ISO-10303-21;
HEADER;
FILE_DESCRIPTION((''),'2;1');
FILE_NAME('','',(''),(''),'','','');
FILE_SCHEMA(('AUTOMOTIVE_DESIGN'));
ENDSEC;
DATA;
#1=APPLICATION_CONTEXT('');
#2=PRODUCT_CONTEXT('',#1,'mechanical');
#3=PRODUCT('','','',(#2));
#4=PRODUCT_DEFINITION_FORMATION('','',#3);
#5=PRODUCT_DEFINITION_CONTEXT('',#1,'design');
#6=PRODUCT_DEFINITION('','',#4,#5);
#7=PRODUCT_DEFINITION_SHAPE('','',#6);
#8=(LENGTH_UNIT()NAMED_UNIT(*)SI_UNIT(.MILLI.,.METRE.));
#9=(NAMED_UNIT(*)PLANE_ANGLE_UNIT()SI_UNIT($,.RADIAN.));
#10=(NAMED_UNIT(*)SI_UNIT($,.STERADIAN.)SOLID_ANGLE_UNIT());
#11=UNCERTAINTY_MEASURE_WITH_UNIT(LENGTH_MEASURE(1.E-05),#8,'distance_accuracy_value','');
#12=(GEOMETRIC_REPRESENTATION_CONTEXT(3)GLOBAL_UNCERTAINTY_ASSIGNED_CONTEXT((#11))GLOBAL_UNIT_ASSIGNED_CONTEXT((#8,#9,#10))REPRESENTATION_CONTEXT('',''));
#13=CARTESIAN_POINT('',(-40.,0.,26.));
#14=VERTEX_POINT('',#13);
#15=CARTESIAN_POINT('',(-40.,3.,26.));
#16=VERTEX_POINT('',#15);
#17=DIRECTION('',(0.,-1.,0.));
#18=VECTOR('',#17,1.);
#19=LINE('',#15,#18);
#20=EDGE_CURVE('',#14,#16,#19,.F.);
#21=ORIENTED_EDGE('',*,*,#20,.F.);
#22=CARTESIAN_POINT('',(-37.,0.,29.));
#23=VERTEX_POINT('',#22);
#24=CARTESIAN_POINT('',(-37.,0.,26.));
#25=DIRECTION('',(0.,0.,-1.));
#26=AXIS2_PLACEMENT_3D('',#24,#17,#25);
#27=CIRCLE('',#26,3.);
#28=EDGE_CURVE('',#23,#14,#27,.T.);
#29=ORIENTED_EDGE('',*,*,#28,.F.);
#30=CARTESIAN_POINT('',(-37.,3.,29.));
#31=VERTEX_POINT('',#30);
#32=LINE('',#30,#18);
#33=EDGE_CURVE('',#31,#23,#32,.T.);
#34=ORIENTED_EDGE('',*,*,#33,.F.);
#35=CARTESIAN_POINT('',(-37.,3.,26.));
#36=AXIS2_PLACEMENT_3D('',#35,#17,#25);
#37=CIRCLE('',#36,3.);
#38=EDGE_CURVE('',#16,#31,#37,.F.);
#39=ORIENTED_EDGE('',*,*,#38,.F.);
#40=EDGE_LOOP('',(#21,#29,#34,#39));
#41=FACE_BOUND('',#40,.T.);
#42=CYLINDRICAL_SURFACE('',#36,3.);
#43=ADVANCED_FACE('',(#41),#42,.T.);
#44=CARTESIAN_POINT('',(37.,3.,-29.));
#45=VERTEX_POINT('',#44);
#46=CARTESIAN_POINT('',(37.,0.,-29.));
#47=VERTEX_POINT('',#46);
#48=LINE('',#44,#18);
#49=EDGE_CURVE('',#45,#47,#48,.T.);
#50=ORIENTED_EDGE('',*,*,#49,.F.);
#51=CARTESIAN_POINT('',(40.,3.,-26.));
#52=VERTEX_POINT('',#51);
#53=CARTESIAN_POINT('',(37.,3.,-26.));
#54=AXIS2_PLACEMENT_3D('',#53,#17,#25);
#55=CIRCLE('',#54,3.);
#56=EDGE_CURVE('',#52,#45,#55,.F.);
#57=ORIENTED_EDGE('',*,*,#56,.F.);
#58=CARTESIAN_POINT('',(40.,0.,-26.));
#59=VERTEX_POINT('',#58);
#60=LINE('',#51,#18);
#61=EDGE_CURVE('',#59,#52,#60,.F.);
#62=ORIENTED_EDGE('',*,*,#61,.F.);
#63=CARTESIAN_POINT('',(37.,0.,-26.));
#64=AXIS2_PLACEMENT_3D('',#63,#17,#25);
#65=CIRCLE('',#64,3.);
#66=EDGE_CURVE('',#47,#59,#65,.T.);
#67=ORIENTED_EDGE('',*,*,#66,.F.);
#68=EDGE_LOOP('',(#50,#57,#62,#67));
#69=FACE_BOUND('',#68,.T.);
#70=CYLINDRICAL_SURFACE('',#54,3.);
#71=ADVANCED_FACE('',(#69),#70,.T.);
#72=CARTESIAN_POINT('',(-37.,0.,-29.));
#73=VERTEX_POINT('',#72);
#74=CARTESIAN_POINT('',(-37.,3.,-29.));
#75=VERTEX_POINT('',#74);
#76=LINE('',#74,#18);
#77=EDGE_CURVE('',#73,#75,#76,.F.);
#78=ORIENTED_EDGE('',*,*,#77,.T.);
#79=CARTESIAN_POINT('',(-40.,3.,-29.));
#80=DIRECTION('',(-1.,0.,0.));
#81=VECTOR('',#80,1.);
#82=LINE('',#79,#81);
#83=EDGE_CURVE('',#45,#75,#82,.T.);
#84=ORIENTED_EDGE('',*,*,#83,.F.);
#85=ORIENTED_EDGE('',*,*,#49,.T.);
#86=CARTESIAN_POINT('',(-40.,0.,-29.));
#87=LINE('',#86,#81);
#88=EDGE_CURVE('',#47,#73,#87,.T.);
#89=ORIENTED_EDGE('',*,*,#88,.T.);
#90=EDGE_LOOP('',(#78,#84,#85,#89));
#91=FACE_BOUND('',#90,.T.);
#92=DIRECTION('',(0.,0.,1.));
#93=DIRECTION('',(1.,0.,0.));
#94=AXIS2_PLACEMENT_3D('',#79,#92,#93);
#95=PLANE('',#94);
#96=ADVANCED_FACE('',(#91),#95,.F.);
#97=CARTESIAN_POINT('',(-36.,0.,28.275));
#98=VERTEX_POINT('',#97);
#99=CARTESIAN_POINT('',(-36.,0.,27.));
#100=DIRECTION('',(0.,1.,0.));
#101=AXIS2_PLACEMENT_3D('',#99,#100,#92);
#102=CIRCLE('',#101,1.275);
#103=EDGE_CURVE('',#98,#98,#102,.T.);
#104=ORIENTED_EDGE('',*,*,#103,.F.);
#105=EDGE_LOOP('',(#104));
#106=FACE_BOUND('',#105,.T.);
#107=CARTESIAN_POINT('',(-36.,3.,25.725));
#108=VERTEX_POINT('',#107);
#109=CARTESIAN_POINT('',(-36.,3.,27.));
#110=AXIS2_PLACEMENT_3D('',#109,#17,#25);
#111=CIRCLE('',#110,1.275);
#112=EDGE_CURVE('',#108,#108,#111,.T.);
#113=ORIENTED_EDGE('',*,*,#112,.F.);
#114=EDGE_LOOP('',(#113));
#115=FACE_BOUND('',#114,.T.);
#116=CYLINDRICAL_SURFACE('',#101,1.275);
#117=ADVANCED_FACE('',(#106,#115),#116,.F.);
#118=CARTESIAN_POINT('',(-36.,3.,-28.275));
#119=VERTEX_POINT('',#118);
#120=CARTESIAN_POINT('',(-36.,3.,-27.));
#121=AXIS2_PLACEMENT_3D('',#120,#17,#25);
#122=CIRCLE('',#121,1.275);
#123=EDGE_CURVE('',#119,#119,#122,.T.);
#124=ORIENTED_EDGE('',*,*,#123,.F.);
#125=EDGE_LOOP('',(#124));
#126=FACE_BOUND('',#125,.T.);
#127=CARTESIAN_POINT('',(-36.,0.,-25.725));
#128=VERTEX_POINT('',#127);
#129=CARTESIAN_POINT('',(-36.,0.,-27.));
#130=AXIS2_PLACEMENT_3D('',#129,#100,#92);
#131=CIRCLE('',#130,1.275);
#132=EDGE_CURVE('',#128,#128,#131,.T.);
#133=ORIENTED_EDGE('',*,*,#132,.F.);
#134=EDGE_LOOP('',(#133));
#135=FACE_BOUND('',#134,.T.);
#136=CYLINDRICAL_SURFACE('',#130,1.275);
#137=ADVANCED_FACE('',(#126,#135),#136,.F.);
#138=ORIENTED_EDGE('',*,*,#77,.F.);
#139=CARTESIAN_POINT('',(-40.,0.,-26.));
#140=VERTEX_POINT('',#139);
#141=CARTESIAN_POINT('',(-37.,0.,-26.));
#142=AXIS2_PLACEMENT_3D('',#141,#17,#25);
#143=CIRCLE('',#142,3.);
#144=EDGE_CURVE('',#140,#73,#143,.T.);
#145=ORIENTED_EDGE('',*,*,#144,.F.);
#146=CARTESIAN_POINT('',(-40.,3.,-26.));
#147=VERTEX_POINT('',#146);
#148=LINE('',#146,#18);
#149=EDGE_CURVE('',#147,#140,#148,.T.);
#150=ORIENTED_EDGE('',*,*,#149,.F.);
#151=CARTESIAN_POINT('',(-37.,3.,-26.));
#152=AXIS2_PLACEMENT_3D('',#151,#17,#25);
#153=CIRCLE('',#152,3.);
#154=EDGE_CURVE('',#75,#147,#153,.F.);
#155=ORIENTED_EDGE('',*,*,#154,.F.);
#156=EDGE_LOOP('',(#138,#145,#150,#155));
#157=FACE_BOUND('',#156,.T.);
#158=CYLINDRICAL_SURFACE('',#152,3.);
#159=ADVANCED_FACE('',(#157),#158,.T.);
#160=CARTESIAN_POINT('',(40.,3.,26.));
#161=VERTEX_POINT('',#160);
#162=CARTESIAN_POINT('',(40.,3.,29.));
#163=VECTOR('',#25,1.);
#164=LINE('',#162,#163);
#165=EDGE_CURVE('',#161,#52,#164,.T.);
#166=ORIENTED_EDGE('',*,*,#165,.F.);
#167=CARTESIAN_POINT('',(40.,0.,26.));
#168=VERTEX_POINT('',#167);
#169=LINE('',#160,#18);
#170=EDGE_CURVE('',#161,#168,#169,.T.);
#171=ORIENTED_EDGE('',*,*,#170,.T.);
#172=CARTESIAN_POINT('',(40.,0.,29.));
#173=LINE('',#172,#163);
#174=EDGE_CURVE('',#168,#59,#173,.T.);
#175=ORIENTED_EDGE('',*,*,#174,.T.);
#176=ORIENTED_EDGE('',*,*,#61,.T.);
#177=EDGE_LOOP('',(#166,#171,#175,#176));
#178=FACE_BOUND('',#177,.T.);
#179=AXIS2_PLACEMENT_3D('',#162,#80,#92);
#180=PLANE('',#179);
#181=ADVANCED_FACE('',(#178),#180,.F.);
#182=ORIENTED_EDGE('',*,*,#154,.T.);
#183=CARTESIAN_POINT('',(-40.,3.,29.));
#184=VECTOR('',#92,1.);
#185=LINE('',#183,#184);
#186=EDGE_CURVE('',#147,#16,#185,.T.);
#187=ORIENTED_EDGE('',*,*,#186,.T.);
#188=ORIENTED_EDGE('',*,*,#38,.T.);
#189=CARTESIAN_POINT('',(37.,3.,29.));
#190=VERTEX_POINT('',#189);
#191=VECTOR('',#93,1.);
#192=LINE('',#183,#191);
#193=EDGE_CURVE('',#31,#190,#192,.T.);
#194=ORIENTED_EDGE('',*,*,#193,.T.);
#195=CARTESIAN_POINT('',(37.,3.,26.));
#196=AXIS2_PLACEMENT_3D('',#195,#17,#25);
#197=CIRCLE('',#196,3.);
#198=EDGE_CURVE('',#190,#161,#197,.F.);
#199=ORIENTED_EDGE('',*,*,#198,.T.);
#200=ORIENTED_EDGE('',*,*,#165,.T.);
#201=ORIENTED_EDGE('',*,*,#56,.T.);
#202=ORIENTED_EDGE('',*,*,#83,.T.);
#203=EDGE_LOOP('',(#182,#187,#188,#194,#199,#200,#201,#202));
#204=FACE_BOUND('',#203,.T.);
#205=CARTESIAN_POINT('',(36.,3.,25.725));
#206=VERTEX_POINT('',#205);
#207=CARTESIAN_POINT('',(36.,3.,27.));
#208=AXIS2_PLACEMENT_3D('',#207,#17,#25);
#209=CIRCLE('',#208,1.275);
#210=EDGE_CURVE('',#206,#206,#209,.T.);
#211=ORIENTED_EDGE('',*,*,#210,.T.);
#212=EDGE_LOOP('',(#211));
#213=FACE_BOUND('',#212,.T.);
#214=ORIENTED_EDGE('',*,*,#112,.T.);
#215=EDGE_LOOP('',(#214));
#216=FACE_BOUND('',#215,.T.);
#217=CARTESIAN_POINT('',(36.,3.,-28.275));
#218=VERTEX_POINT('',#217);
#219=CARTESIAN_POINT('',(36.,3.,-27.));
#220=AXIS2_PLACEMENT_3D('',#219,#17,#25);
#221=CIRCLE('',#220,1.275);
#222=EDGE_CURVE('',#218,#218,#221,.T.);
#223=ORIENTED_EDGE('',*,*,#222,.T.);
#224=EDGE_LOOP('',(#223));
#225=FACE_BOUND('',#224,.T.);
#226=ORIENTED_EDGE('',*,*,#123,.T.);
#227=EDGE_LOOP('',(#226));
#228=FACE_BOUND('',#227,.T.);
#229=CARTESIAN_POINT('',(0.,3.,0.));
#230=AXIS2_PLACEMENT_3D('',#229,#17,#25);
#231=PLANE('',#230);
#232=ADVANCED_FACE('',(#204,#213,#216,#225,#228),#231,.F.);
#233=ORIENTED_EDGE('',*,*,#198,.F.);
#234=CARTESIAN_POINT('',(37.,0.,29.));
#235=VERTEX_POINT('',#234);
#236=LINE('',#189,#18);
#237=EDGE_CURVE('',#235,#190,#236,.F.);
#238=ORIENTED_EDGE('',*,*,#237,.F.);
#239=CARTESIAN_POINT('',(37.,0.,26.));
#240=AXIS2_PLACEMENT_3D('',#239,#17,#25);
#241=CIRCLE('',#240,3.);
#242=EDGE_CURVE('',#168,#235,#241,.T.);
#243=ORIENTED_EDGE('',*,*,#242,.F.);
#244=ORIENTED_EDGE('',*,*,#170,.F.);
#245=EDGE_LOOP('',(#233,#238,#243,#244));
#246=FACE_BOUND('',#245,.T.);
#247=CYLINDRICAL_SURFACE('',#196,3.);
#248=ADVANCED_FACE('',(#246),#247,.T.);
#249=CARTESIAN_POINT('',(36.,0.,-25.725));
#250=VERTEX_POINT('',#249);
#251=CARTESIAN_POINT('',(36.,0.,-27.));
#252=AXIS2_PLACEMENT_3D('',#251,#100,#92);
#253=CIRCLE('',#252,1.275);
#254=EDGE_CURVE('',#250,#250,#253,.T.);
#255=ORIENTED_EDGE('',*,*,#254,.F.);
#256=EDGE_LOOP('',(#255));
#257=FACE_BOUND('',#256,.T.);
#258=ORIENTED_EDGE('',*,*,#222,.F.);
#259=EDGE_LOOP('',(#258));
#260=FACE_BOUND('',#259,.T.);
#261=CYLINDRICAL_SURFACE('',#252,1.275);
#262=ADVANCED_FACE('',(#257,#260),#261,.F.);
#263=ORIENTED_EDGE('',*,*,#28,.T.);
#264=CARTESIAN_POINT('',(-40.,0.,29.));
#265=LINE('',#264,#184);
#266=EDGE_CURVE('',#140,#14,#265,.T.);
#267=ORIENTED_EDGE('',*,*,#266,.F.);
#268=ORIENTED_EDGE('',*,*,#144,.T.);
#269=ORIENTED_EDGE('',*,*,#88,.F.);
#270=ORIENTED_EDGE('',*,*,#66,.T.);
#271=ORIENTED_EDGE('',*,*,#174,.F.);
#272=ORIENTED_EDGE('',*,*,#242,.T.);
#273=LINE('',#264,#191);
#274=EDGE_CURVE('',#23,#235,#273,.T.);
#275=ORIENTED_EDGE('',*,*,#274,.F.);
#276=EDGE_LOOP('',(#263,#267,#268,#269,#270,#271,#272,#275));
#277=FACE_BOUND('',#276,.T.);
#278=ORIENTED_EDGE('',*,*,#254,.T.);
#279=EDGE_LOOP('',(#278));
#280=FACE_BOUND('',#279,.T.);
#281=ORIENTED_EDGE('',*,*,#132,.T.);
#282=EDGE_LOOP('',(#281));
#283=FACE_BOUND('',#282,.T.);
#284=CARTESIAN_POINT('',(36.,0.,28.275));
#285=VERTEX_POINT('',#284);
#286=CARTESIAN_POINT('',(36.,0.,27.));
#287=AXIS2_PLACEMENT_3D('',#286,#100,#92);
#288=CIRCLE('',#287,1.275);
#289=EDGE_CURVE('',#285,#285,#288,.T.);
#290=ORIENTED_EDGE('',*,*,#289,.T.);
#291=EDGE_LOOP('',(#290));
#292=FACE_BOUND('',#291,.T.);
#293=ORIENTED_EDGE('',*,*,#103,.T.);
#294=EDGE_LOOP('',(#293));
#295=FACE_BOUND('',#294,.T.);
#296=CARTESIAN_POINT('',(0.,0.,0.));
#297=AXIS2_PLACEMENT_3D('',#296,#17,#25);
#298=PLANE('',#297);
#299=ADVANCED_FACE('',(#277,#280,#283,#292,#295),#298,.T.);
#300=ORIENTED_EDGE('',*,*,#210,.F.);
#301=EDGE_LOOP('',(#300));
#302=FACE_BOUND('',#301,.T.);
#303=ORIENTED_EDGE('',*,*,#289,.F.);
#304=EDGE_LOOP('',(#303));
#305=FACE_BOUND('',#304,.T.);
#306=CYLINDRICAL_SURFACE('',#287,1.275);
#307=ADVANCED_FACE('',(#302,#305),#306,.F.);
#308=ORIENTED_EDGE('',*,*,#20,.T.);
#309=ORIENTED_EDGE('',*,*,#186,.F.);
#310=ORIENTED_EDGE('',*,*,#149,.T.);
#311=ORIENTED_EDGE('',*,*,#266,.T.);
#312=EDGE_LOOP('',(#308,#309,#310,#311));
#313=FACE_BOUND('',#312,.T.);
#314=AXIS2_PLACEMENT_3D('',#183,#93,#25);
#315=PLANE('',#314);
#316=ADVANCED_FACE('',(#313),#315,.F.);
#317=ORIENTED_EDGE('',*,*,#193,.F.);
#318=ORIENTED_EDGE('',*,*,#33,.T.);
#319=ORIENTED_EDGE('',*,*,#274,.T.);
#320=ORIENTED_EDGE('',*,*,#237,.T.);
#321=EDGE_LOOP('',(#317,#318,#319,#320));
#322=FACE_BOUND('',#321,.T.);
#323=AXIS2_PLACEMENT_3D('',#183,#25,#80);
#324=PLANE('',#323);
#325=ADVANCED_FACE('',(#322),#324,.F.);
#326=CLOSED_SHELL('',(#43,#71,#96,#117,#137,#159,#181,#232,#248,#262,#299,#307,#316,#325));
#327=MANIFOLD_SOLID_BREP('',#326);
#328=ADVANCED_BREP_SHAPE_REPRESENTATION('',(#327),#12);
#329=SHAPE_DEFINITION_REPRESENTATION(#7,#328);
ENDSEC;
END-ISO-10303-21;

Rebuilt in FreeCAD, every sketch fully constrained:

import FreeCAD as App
import Part
import Sketcher


def edges_at(feature, points):
    """Names of the edges that pass closest to the given points."""
    edges = feature.Shape.Edges
    near = lambda p: min(range(len(edges)), key=lambda i: edges[i].distToShape(Part.Vertex(*p))[0])
    return sorted({f"Edge{near(p) + 1}" for p in points})

doc = App.newDocument("Part")
params = doc.addObject("Spreadsheet::Sheet", "Params")
for row, (alias, value) in enumerate([
    ("sketch1_width", "80 mm"),
    ("sketch1_height", "58 mm"),
    ("pad1_length", "3 mm"),
    ("sketch2_diameter", "2.55 mm"),
    ("fillet_radius", "3 mm"),
], start=1):
    params.set(f"A{row}", alias)
    params.set(f"B{row}", "=" + value)
    params.setAlias(f"B{row}", alias)

body = doc.addObject("PartDesign::Body", "Body")

sketch1 = body.newObject("Sketcher::SketchObject", "Sketch")
sketch1.AttachmentSupport = (doc.getObject("XZ_Plane"), [""])
sketch1.MapMode = "FlatFace"
sketch1.addGeometry(Part.LineSegment(App.Vector(-40, -29, 0), App.Vector(-40, 29, 0)), False)
sketch1.addGeometry(Part.LineSegment(App.Vector(-40, 29, 0), App.Vector(40, 29, 0)), False)
sketch1.addGeometry(Part.LineSegment(App.Vector(40, 29, 0), App.Vector(40, -29, 0)), False)
sketch1.addGeometry(Part.LineSegment(App.Vector(40, -29, 0), App.Vector(-40, -29, 0)), False)
sketch1.addConstraint(Sketcher.Constraint("Coincident", 0, 2, 1, 1))
sketch1.addConstraint(Sketcher.Constraint("Coincident", 1, 2, 2, 1))
sketch1.addConstraint(Sketcher.Constraint("Coincident", 2, 2, 3, 1))
sketch1.addConstraint(Sketcher.Constraint("Coincident", 3, 2, 0, 1))
sketch1.addConstraint(Sketcher.Constraint("Vertical", 0))
sketch1.addConstraint(Sketcher.Constraint("Horizontal", 1))
sketch1.addConstraint(Sketcher.Constraint("Vertical", 2))
sketch1.addConstraint(Sketcher.Constraint("Horizontal", 3))
sketch1.addConstraint(Sketcher.Constraint("Symmetric", 0, 2, 2, 2, -1, 1))
sketch1.addConstraint(Sketcher.Constraint("DistanceX", 1, 1, 1, 2, 80.0))
sketch1.addConstraint(Sketcher.Constraint("DistanceY", 0, 1, 0, 2, 58.0))
sketch1.setExpression("Constraints[9]", "Params.sketch1_width")
sketch1.setExpression("Constraints[10]", "Params.sketch1_height")
pad1 = body.newObject("PartDesign::Pad", "Pad")
pad1.Profile = sketch1
pad1.setExpression("Length", "Params.pad1_length")
pad1.Reversed = True

sketch2 = body.newObject("Sketcher::SketchObject", "Sketch001")
sketch2.AttachmentSupport = (doc.getObject("XZ_Plane"), [""])
sketch2.MapMode = "FlatFace"
sketch2.AttachmentOffset = App.Placement(App.Vector(0, 0, -3), App.Rotation())
sketch2.addGeometry(Part.Circle(App.Vector(36, 27, 0), App.Vector(0, 0, 1), 1.3), False)
sketch2.addGeometry(Part.Circle(App.Vector(36, -27, 0), App.Vector(0, 0, 1), 1.3), False)
sketch2.addGeometry(Part.Circle(App.Vector(-36, -27, 0), App.Vector(0, 0, 1), 1.3), False)
sketch2.addGeometry(Part.Circle(App.Vector(-36, 27, 0), App.Vector(0, 0, 1), 1.3), False)
sketch2.addConstraint(Sketcher.Constraint("Equal", 0, 1))
sketch2.addConstraint(Sketcher.Constraint("Equal", 1, 2))
sketch2.addConstraint(Sketcher.Constraint("Equal", 2, 3))
sketch2.addConstraint(Sketcher.Constraint("Symmetric", 0, 3, 2, 3, -1, 1))
sketch2.addConstraint(Sketcher.Constraint("Symmetric", 1, 3, 3, 3, -1, 1))
sketch2.addConstraint(Sketcher.Constraint("Symmetric", 1, 3, 2, 3, -2))
sketch2.addConstraint(Sketcher.Constraint("Diameter", 0, 2.55))
sketch2.addConstraint(Sketcher.Constraint("DistanceX", -1, 1, 0, 3, 36.0))
sketch2.addConstraint(Sketcher.Constraint("DistanceY", -1, 1, 0, 3, 27.0))
sketch2.setExpression("Constraints[6]", "Params.sketch2_diameter")
pocket1 = body.newObject("PartDesign::Pocket", "Pocket")
pocket1.Profile = sketch2
pocket1.Type = "ThroughAll"
pocket1.Midplane = True
doc.recompute()

fillet = body.newObject("PartDesign::Fillet", "Fillet")
fillet.Base = (pocket1, edges_at(pocket1, [
    (40, 1.5, 29),
    (-40, 1.5, 29),
    (-40, 1.5, -29),
    (40, 1.5, -29),
]))
fillet.setExpression("Radius", "Params.fillet_radius")

doc.recompute()
